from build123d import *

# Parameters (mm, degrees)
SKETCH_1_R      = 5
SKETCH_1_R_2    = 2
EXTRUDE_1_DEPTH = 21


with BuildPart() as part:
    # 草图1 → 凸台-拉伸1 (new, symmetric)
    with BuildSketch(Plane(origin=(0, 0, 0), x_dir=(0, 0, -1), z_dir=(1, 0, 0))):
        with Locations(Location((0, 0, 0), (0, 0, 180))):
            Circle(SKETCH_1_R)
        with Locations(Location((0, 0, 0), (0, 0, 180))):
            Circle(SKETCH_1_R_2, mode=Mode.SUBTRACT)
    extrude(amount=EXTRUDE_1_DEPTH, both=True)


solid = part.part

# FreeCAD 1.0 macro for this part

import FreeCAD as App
import Part
import Sketcher

doc = App.newDocument("Part")
body = doc.addObject("PartDesign::Body", "Body")

# Sketch on YZ plane
sketch1 = body.newObject("Sketcher::SketchObject", "Sketch")
sketch1.AttachmentSupport = (doc.getObject("YZ_Plane"), [""])
sketch1.MapMode = "FlatFace"
sketch1.addGeometry([
    Part.Circle(App.Vector(0, 0, 0), App.Vector(0, 0, 1), 5),
    Part.Circle(App.Vector(0, 0, 0), App.Vector(0, 0, 1), 2),
], False)
sketch1.addConstraint([
    Sketcher.Constraint("Coincident", 0, 3, -1, 1),
    Sketcher.Constraint("Coincident", 1, 3, -1, 1),
    Sketcher.Constraint("Diameter", 0, 10.0),
    Sketcher.Constraint("Diameter", 1, 4.0),
])
pad1 = body.newObject("PartDesign::Pad", "Pad")
pad1.Profile = sketch1
pad1.Length = 42
pad1.Midplane = True

doc.recompute()
